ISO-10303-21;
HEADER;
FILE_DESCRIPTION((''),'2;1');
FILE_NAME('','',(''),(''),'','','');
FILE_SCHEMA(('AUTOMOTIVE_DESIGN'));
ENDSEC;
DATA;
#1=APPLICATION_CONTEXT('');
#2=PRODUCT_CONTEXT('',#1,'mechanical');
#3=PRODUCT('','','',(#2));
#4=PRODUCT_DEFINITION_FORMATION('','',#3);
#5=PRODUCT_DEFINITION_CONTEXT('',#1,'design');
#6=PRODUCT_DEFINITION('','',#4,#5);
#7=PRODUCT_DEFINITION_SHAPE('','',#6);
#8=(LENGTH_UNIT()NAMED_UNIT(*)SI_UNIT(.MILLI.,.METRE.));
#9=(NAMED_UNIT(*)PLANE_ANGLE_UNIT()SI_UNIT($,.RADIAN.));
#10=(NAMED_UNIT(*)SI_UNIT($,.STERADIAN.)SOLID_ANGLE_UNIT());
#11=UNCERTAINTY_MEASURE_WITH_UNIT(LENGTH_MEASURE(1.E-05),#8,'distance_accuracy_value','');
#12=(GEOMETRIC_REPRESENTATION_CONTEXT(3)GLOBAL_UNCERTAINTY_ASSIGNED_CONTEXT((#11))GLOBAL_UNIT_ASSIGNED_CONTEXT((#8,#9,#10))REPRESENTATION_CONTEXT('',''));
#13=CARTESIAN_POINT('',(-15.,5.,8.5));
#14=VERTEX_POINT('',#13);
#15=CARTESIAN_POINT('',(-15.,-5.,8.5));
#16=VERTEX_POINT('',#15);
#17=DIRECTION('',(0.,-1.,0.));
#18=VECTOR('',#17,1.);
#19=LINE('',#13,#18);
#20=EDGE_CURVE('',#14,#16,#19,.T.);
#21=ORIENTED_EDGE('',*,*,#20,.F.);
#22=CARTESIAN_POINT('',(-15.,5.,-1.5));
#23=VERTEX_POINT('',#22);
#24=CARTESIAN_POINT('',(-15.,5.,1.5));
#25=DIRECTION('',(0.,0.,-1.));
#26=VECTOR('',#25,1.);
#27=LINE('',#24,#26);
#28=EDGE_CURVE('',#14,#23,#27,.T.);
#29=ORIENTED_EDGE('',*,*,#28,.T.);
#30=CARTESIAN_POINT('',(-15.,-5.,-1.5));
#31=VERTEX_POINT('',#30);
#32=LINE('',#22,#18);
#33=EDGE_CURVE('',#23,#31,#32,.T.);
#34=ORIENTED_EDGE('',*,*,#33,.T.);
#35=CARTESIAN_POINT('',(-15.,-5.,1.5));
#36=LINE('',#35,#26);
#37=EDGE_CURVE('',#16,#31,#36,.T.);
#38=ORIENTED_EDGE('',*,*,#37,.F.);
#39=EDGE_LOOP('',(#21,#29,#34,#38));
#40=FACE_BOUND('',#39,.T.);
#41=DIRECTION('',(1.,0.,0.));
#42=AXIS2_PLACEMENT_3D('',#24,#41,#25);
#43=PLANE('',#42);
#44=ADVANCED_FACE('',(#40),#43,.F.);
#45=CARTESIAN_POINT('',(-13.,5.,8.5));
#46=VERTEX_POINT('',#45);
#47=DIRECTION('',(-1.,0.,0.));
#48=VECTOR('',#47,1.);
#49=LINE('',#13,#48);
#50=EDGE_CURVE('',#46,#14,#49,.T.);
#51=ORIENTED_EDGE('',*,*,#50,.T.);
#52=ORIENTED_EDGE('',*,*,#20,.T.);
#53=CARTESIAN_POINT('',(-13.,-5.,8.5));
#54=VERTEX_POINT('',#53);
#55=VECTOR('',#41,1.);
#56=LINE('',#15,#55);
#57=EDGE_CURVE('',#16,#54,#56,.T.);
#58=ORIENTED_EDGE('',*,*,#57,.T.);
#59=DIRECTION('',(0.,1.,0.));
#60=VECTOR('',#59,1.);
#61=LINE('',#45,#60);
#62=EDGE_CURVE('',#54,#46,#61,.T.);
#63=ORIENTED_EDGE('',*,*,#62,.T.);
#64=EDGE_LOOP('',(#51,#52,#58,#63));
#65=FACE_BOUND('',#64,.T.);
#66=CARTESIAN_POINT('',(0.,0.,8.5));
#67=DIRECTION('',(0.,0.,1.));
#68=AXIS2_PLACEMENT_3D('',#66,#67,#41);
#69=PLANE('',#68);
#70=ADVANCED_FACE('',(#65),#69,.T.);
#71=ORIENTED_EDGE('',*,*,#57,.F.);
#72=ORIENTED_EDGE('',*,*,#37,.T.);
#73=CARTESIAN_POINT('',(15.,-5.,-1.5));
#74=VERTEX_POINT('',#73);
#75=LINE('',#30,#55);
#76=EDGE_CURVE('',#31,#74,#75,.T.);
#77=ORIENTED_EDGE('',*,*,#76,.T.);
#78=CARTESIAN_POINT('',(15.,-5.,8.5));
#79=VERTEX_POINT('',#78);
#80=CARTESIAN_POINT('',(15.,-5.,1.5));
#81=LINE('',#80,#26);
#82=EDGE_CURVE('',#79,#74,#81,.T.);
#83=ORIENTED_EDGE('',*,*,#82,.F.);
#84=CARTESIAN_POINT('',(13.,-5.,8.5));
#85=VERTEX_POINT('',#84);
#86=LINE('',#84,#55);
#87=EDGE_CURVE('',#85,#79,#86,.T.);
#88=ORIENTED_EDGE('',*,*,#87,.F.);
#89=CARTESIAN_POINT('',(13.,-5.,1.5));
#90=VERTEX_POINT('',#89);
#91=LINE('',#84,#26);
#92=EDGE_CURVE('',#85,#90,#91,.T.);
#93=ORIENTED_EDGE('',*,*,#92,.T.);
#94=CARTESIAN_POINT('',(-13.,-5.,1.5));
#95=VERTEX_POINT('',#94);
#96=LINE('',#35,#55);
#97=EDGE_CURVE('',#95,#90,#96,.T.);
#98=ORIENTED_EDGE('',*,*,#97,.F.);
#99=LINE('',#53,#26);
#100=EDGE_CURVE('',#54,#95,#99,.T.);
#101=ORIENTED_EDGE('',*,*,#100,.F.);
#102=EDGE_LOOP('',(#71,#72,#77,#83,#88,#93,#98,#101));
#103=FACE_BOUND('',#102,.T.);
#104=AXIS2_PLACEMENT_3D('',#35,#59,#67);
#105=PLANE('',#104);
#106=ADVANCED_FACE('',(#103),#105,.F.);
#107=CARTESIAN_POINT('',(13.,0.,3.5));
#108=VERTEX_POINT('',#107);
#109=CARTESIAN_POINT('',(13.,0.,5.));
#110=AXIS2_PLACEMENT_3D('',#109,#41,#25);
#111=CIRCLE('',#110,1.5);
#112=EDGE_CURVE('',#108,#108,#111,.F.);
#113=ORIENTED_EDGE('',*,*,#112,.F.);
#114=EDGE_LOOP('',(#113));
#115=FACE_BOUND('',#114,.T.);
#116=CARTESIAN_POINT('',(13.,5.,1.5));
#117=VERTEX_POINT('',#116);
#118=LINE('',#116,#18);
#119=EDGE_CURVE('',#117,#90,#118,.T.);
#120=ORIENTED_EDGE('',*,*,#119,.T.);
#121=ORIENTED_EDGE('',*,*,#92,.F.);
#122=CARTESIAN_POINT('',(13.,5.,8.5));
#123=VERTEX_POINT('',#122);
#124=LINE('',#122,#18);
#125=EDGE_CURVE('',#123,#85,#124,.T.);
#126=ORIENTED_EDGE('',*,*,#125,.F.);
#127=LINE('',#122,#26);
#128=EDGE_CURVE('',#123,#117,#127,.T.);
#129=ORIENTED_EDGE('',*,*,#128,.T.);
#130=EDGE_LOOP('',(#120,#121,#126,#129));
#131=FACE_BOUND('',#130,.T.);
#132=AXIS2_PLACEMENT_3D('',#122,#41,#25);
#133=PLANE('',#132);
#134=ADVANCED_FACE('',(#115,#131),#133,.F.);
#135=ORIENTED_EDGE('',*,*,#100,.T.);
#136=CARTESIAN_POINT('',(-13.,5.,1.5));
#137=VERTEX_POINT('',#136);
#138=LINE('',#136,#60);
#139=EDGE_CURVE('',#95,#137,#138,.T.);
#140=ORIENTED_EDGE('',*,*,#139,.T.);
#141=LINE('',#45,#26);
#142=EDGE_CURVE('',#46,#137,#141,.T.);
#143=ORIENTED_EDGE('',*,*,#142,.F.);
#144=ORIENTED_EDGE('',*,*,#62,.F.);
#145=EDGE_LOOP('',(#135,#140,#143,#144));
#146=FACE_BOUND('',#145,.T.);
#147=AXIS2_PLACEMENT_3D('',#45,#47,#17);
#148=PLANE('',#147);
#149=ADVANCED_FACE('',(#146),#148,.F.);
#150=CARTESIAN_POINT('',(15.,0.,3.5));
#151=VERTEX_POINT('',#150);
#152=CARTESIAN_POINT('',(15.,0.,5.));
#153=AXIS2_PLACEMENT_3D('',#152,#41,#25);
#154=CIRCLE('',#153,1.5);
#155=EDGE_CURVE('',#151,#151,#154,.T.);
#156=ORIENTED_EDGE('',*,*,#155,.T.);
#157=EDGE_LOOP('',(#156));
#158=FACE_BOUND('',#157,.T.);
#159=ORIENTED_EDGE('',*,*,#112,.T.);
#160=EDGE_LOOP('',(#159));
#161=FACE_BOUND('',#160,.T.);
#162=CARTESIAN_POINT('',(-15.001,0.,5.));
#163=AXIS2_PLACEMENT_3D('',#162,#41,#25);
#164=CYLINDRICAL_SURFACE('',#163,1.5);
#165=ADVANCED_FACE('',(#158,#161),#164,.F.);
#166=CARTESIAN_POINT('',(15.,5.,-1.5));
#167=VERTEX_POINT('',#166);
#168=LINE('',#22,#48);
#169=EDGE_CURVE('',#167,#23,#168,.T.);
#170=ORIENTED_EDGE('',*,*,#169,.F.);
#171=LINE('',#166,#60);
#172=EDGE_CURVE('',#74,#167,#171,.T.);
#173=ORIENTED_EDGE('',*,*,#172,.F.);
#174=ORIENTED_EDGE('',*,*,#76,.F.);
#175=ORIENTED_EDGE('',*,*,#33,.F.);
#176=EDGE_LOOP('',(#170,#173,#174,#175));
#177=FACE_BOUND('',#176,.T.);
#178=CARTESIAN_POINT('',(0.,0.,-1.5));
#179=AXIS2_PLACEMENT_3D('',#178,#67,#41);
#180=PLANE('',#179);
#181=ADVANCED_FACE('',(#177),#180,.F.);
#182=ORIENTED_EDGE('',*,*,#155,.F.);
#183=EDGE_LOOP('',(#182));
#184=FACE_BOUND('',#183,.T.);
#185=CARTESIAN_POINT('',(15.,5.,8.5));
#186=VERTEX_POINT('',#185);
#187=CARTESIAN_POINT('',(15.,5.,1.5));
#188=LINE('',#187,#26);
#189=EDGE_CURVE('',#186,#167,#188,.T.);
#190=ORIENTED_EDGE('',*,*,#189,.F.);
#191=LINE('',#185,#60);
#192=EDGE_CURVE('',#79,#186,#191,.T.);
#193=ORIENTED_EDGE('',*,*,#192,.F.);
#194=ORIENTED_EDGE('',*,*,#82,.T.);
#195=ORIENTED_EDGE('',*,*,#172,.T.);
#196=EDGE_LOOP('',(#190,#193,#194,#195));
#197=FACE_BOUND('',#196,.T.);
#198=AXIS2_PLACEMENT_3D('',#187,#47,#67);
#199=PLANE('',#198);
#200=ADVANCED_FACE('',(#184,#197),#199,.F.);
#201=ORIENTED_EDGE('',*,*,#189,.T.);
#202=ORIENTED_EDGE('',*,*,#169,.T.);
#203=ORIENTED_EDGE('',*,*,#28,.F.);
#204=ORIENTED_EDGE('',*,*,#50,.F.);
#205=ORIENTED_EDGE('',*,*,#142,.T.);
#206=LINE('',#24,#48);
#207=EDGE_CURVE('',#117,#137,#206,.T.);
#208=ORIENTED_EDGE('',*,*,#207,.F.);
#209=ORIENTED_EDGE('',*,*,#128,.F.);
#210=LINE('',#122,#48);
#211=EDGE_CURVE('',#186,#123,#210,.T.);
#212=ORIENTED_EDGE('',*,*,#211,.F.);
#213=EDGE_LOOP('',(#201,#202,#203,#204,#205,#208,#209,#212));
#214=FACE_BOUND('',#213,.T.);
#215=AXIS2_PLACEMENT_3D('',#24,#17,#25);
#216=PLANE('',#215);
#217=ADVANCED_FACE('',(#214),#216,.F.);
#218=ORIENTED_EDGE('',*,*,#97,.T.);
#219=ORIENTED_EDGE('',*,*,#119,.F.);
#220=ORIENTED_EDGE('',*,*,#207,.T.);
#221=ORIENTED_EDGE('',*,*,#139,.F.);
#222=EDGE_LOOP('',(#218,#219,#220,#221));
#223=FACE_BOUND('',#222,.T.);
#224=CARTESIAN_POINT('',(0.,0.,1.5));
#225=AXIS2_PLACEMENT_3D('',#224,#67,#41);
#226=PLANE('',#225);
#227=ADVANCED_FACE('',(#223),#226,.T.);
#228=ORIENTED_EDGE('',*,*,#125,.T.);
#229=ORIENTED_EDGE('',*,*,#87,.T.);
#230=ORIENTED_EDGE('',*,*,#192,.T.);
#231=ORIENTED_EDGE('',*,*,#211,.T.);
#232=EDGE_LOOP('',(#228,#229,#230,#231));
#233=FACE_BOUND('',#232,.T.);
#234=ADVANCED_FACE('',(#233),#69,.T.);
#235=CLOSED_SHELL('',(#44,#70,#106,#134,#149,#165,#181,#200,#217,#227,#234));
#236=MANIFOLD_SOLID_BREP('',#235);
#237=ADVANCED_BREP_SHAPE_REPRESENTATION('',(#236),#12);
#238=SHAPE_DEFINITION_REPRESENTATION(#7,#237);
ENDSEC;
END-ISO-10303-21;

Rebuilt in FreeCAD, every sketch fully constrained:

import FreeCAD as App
import Part
import Sketcher

doc = App.newDocument("Part")
body = doc.addObject("PartDesign::Body", "Body")

# Sketch on XY plane
sketch1 = body.newObject("Sketcher::SketchObject", "Sketch")
sketch1.AttachmentSupport = (doc.getObject("XY_Plane"), [""])
sketch1.MapMode = "FlatFace"
sketch1.addGeometry([
    Part.LineSegment(App.Vector(-15, 5, 0), App.Vector(-15, -5, 0)),
    Part.LineSegment(App.Vector(-15, -5, 0), App.Vector(15, -5, 0)),
    Part.LineSegment(App.Vector(15, -5, 0), App.Vector(15, 5, 0)),
    Part.LineSegment(App.Vector(15, 5, 0), App.Vector(-15, 5, 0)),
], False)
sketch1.addConstraint([
    Sketcher.Constraint("Coincident", 0, 2, 1, 1),
    Sketcher.Constraint("Coincident", 1, 2, 2, 1),
    Sketcher.Constraint("Coincident", 2, 2, 3, 1),
    Sketcher.Constraint("Coincident", 3, 2, 0, 1),
    Sketcher.Constraint("Vertical", 0),
    Sketcher.Constraint("Horizontal", 1),
    Sketcher.Constraint("Vertical", 2),
    Sketcher.Constraint("Horizontal", 3),
    Sketcher.Constraint("Symmetric", 0, 2, 2, 2, -1, 1),
    Sketcher.Constraint("DistanceX", 1, 1, 1, 2, 30.0),
    Sketcher.Constraint("DistanceY", 0, 2, 0, 1, 10.0),
])
pad1 = body.newObject("PartDesign::Pad", "Pad")
pad1.Profile = sketch1
pad1.Length = 3
pad1.Midplane = True

# Sketch on XY plane
sketch2 = body.newObject("Sketcher::SketchObject", "Sketch001")
sketch2.AttachmentSupport = (doc.getObject("XY_Plane"), [""])
sketch2.MapMode = "FlatFace"
sketch2.AttachmentOffset = App.Placement(App.Vector(0, 0, 1.5), App.Rotation())
sketch2.addGeometry([
    Part.LineSegment(App.Vector(-15, 5, 0), App.Vector(-15, -5, 0)),  # 0
    Part.LineSegment(App.Vector(-15, -5, 0), App.Vector(-13, -5, 0)),  # 1
    Part.LineSegment(App.Vector(-13, -5, 0), App.Vector(-13, 5, 0)),  # 2
    Part.LineSegment(App.Vector(-13, 5, 0), App.Vector(-15, 5, 0)),  # 3
    Part.LineSegment(App.Vector(13, 5, 0), App.Vector(13, -5, 0)),  # 4
    Part.LineSegment(App.Vector(13, -5, 0), App.Vector(15, -5, 0)),  # 5
    Part.LineSegment(App.Vector(15, -5, 0), App.Vector(15, 5, 0)),  # 6
    Part.LineSegment(App.Vector(15, 5, 0), App.Vector(13, 5, 0)),  # 7
], False)
sketch2.addConstraint([
    Sketcher.Constraint("Coincident", 0, 2, 1, 1),
    Sketcher.Constraint("Coincident", 1, 2, 2, 1),
    Sketcher.Constraint("Coincident", 2, 2, 3, 1),
    Sketcher.Constraint("Coincident", 3, 2, 0, 1),
    Sketcher.Constraint("Coincident", 4, 2, 5, 1),
    Sketcher.Constraint("Coincident", 5, 2, 6, 1),
    Sketcher.Constraint("Coincident", 6, 2, 7, 1),
    Sketcher.Constraint("Coincident", 7, 2, 4, 1),
    Sketcher.Constraint("Vertical", 0),
    Sketcher.Constraint("Horizontal", 1),
    Sketcher.Constraint("Vertical", 2),
    Sketcher.Constraint("Horizontal", 3),
    Sketcher.Constraint("Vertical", 4),
    Sketcher.Constraint("Horizontal", 5),
    Sketcher.Constraint("Vertical", 6),
    Sketcher.Constraint("Horizontal", 7),
    Sketcher.Constraint("Symmetric", 2, 2, 4, 2, -1, 1),
    Sketcher.Constraint("Symmetric", 0, 2, 6, 2, -1, 1),
    Sketcher.Constraint("Horizontal", 1, 2, 4, 2),
    Sketcher.Constraint("DistanceX", 1, 1, 1, 2, 2.0),
    Sketcher.Constraint("DistanceY", 0, 2, 0, 1, 10.0),
    Sketcher.Constraint("DistanceX", 0, 2, -1, 1, 15.0),
])
pad2 = body.newObject("PartDesign::Pad", "Pad001")
pad2.Profile = sketch2
pad2.Length = 7

# Sketch on YZ plane
sketch3 = body.newObject("Sketcher::SketchObject", "Sketch002")
sketch3.AttachmentSupport = (doc.getObject("YZ_Plane"), [""])
sketch3.MapMode = "FlatFace"
sketch3.AttachmentOffset = App.Placement(App.Vector(0, 0, 15), App.Rotation())
sketch3.addGeometry(Part.Circle(App.Vector(0, 5, 0), App.Vector(0, 0, 1), 1.5), False)
sketch3.addConstraint([
    Sketcher.Constraint("PointOnObject", 0, 3, -2),
    Sketcher.Constraint("Diameter", 0, 3.0),
    Sketcher.Constraint("DistanceY", -1, 1, 0, 3, 5.0),
])
pocket1 = body.newObject("PartDesign::Pocket", "Pocket")
pocket1.Profile = sketch3
pocket1.Type = "UpToFirst"

doc.recompute()
